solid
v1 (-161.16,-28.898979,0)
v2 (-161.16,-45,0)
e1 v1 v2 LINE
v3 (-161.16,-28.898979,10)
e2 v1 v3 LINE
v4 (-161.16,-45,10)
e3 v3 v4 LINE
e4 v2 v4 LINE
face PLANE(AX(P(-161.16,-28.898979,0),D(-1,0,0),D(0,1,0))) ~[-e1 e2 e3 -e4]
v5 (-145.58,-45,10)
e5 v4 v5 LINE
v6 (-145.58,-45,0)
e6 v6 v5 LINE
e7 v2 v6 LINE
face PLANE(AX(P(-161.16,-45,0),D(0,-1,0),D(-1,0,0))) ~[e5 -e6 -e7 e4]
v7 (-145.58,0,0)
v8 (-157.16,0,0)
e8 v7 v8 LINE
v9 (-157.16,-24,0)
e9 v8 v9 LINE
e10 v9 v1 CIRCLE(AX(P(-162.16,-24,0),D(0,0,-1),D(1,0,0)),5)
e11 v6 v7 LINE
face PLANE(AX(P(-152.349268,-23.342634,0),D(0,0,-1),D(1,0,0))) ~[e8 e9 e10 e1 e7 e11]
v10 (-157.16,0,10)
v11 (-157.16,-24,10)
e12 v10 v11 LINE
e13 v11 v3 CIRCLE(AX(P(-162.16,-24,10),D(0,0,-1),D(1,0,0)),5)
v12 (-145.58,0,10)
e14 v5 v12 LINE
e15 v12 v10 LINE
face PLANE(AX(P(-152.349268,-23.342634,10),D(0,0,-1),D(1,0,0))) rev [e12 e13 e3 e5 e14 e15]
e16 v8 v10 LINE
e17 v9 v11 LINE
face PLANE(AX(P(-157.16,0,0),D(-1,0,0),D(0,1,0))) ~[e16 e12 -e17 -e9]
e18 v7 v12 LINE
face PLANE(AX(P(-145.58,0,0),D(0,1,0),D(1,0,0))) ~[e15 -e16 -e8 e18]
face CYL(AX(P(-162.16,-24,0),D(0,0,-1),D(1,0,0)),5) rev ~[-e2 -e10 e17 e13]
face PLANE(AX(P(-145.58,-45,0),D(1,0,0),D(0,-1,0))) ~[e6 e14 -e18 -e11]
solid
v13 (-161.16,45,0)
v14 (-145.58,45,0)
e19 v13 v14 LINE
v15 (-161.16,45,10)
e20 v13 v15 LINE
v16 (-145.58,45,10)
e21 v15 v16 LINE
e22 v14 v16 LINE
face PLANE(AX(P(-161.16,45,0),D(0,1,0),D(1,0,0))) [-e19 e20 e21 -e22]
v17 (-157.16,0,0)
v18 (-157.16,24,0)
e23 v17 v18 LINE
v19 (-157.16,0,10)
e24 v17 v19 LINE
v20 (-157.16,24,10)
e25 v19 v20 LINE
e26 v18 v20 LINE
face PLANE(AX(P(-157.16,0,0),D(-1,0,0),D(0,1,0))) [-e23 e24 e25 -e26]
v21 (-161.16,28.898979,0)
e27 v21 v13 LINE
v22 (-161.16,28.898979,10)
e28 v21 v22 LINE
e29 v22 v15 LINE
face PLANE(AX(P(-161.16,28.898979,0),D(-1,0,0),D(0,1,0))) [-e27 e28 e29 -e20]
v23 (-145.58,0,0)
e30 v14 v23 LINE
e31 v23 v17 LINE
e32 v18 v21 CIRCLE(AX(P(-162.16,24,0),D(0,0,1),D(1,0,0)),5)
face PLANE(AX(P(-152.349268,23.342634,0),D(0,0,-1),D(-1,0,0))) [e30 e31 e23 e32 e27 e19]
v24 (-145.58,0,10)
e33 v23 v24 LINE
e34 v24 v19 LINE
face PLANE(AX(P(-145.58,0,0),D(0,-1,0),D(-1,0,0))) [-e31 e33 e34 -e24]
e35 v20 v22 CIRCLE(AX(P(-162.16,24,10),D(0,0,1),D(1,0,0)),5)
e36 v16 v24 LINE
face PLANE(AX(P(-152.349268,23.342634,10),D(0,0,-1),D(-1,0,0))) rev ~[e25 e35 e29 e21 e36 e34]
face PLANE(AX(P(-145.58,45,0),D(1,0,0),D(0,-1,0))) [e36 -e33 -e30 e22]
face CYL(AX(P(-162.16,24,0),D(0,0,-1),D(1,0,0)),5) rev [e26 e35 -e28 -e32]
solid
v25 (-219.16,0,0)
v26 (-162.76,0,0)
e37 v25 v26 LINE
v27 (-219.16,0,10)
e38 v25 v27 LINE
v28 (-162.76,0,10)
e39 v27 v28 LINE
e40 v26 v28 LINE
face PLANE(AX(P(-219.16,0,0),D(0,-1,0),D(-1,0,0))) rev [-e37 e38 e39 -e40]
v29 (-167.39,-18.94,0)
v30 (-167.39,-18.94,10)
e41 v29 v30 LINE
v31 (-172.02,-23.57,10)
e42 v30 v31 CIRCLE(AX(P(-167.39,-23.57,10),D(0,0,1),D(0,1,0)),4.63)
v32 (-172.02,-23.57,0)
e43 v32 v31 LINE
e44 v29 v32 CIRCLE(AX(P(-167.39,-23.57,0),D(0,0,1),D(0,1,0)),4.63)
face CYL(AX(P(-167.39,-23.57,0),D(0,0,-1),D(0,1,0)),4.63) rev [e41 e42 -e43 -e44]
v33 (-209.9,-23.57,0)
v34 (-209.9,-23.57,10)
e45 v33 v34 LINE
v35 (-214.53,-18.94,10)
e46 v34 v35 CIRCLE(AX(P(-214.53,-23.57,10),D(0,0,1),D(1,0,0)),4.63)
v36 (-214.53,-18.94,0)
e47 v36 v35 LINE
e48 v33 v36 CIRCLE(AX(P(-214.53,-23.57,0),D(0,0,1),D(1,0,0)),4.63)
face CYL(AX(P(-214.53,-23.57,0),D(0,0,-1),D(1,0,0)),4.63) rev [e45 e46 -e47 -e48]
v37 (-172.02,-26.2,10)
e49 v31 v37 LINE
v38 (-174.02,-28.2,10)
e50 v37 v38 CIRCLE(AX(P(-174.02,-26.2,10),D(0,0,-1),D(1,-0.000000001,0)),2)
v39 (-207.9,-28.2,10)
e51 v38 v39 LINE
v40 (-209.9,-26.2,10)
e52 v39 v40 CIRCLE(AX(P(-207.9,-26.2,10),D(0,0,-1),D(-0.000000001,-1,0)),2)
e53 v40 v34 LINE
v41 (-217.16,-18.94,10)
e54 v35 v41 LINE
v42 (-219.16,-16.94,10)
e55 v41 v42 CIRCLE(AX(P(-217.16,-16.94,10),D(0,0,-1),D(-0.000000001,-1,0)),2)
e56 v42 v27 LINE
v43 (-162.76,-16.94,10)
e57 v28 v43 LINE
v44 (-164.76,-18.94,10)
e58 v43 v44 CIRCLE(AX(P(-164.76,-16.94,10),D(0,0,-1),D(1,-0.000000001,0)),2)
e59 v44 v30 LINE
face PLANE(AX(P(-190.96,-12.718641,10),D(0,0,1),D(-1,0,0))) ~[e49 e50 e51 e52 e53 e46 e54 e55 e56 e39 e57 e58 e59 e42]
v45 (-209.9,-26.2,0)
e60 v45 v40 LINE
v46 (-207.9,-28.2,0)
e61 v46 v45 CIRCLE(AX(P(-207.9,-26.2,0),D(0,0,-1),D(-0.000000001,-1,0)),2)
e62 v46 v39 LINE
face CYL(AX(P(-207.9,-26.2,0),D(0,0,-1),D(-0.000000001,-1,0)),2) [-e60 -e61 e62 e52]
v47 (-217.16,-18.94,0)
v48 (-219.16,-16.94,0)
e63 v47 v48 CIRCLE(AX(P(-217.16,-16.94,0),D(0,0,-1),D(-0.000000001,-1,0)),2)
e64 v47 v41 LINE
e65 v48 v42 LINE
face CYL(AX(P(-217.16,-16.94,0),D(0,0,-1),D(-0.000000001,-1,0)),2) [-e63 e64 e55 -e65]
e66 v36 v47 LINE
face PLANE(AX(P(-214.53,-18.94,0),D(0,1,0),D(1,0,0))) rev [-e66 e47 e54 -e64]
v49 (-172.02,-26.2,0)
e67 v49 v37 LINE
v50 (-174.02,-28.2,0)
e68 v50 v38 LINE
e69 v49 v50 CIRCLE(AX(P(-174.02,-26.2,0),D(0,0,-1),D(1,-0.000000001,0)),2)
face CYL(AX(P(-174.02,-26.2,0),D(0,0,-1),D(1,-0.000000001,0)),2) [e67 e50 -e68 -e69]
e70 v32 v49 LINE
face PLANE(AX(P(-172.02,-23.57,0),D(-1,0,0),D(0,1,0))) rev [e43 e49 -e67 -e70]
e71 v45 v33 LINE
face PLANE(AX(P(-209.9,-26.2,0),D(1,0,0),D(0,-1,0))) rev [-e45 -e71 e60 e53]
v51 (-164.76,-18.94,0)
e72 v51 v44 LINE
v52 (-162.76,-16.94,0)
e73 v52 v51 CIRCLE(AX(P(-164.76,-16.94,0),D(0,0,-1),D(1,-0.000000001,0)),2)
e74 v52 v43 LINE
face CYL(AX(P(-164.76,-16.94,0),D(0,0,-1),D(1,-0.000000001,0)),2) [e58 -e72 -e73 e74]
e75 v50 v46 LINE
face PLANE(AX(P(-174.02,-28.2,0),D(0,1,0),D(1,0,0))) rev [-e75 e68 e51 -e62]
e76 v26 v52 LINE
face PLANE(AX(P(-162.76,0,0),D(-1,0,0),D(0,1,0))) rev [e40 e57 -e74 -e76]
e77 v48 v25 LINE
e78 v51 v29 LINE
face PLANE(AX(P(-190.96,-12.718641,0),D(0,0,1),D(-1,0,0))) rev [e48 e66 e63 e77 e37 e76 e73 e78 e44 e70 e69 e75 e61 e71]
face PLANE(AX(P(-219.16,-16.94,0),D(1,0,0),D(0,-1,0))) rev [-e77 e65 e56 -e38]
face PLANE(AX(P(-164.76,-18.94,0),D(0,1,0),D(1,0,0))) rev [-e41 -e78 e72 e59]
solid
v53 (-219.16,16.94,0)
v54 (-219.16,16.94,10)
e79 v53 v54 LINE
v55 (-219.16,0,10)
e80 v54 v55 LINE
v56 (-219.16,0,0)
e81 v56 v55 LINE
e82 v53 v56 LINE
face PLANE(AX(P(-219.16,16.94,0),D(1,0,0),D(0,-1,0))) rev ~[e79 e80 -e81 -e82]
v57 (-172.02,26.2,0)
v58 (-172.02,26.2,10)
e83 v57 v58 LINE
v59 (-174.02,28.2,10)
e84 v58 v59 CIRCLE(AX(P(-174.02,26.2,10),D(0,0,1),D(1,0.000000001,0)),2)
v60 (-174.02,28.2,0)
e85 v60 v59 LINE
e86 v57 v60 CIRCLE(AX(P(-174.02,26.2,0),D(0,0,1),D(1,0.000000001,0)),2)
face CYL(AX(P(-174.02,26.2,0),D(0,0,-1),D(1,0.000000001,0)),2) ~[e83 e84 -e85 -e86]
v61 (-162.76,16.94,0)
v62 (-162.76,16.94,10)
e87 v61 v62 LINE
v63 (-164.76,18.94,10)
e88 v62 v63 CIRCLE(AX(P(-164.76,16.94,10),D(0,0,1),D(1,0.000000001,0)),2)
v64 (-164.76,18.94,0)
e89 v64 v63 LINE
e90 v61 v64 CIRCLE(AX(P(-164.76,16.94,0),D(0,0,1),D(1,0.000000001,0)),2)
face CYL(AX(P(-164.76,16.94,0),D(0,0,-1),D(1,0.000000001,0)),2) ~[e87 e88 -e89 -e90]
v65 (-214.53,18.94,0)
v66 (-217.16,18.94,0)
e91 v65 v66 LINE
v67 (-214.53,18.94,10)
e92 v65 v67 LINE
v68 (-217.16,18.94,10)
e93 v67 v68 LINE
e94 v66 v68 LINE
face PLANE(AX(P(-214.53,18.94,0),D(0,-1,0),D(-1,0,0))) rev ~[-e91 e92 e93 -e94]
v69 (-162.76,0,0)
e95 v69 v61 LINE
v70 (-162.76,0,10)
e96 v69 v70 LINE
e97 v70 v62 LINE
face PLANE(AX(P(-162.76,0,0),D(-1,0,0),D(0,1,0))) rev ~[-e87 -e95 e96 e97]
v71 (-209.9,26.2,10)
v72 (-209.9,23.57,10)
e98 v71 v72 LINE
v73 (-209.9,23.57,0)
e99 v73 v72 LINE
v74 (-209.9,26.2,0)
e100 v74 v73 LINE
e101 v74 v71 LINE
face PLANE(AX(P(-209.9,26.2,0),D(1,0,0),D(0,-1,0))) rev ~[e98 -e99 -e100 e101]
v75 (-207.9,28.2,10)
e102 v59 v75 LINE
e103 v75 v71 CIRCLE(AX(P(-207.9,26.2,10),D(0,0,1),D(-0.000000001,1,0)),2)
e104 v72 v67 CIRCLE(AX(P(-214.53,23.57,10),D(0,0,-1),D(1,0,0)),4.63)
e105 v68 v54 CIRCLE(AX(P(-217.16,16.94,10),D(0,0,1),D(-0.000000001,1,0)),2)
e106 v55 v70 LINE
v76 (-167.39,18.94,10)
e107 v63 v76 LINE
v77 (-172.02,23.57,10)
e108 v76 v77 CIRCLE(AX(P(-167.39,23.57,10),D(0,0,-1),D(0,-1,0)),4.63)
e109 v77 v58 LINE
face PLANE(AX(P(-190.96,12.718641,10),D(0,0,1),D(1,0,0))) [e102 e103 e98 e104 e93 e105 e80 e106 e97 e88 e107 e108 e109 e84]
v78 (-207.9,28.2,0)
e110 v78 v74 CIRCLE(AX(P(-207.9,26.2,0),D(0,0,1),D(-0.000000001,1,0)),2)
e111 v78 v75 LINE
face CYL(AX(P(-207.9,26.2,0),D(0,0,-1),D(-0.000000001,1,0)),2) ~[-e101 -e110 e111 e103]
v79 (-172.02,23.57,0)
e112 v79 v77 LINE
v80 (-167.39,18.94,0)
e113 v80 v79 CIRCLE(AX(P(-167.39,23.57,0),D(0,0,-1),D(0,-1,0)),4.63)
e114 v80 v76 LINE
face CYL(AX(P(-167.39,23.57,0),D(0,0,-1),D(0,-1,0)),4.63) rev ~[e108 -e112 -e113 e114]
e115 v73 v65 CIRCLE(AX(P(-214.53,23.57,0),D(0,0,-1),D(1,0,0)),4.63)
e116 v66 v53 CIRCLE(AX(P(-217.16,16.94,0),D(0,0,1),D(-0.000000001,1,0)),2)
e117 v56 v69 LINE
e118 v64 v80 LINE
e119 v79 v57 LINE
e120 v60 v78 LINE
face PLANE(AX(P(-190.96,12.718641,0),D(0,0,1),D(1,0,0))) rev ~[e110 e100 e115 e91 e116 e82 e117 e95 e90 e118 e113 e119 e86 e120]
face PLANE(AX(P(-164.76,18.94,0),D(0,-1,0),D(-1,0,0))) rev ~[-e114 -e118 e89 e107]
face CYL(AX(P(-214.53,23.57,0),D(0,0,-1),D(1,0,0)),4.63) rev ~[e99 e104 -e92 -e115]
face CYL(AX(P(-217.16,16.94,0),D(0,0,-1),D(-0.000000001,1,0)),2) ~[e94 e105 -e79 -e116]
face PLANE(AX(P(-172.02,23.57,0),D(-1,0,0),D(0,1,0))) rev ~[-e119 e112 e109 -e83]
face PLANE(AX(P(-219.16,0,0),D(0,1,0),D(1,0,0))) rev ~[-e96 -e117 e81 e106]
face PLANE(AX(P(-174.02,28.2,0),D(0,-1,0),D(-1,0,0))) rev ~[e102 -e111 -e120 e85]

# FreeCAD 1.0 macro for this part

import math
import FreeCAD as App
import Part
import Sketcher

V = App.Vector

doc = App.newDocument("Part")
params = doc.addObject("Spreadsheet::Sheet", "Params")
for row, (alias, value) in enumerate([
    ("sketch1_radius", "2 mm"),
    ("sketch1_radius2", "4.63 mm"),
    ("sketch1_width", "56.4 mm"),
    ("sketch1_width2", "2.63 mm"),
    ("sketch1_height", "16.94 mm"),
    ("pad1_length", "10 mm"),
    ("sketch2_radius", "5 mm"),
    ("sketch2_height", "45 mm"),
    ("sketch2_height2", "24 mm"),
    ("sketch2_width", "15.58 mm"),
    ("pad2_length", "10 mm"),
], start=1):
    params.set(f"A{row}", alias)
    params.set(f"B{row}", "=" + value)
    params.setAlias(f"B{row}", alias)

body = doc.addObject("PartDesign::Body", "Body")

sketch1 = doc.addObject("Sketcher::SketchObject", "Sketch")
body.addObject(sketch1)
sketch1.AttachmentSupport = (doc.XY_Plane, [""])
sketch1.MapMode = "FlatFace"
sketch1.addGeometry([
    Part.LineSegment(V(-162.8, 0, 0), V(-162.8, 16.9, 0)),
    Part.ArcOfCircle(Part.Circle(V(-164.8, 16.9, 0), V(0, 0, 1), 2), math.radians(0), math.radians(90)),
    Part.LineSegment(V(-164.8, 18.9, 0), V(-167.4, 18.9, 0)),
    Part.ArcOfCircle(Part.Circle(V(-167.4, 23.6, 0), V(0, 0, 1), 4.6), math.radians(180), math.radians(270)),
    Part.LineSegment(V(-172, 23.6, 0), V(-172, 26.2, 0)),
    Part.ArcOfCircle(Part.Circle(V(-174, 26.2, 0), V(0, 0, 1), 2), math.radians(0), math.radians(90)),
    Part.LineSegment(V(-174, 28.2, 0), V(-207.9, 28.2, 0)),
    Part.ArcOfCircle(Part.Circle(V(-207.9, 26.2, 0), V(0, 0, 1), 2), math.radians(90), math.radians(180)),
    Part.LineSegment(V(-209.9, 26.2, 0), V(-209.9, 23.6, 0)),
    Part.ArcOfCircle(Part.Circle(V(-214.5, 23.6, 0), V(0, 0, 1), 4.6), math.radians(-90), math.radians(0)),
    Part.LineSegment(V(-214.5, 18.9, 0), V(-217.2, 18.9, 0)),
    Part.ArcOfCircle(Part.Circle(V(-217.2, 16.9, 0), V(0, 0, 1), 2), math.radians(90), math.radians(180)),
    Part.LineSegment(V(-219.2, 16.9, 0), V(-219.2, 0, 0)),
    Part.LineSegment(V(-219.2, 0, 0), V(-162.8, 0, 0)),
], False)
sketch1.addConstraint([
    Sketcher.Constraint("Tangent", 0, 2, 1, 1),
    Sketcher.Constraint("Tangent", 1, 2, 2, 1),
    Sketcher.Constraint("Tangent", 2, 2, 3, 2),
    Sketcher.Constraint("Tangent", 3, 1, 4, 1),
    Sketcher.Constraint("Tangent", 4, 2, 5, 1),
    Sketcher.Constraint("Tangent", 5, 2, 6, 1),
    Sketcher.Constraint("Tangent", 6, 2, 7, 1),
    Sketcher.Constraint("Tangent", 7, 2, 8, 1),
    Sketcher.Constraint("Tangent", 8, 2, 9, 2),
    Sketcher.Constraint("Tangent", 9, 1, 10, 1),
    Sketcher.Constraint("Tangent", 10, 2, 11, 1),
    Sketcher.Constraint("Tangent", 11, 2, 12, 1),
    Sketcher.Constraint("Coincident", 12, 2, 13, 1),
    Sketcher.Constraint("Coincident", 13, 2, 0, 1),
    Sketcher.Constraint("Vertical", 0),
    Sketcher.Constraint("Horizontal", 2),
    Sketcher.Constraint("Vertical", 4),
    Sketcher.Constraint("Horizontal", 6),
    Sketcher.Constraint("Vertical", 8),
    Sketcher.Constraint("Horizontal", 10),
    Sketcher.Constraint("Vertical", 12),
    Sketcher.Constraint("Horizontal", 13),
    Sketcher.Constraint("Equal", 1, 5),
    Sketcher.Constraint("Equal", 5, 7),
    Sketcher.Constraint("Equal", 3, 9),
    Sketcher.Constraint("Equal", 7, 11),
    Sketcher.Constraint("PointOnObject", 12, 2, -1),
    Sketcher.Constraint("Horizontal", 3, 3, 9, 3),
    Sketcher.Constraint("Equal", 2, 10),
    Sketcher.Constraint("Equal", 10, 4),
    Sketcher.Constraint("Radius", 1, 2.0),
    Sketcher.Constraint("Radius", 3, 4.63),
    Sketcher.Constraint("DistanceX", 13, 1, 13, 2, 56.4),
    Sketcher.Constraint("DistanceX", 2, 2, 2, 1, 2.63),
    Sketcher.Constraint("DistanceY", 0, 1, 0, 2, 16.94),
    Sketcher.Constraint("DistanceX", 7, 3, -1, 1, 207.9),
])
sketch1.setExpression("Constraints[30]", "Params.sketch1_radius")
sketch1.setExpression("Constraints[31]", "Params.sketch1_radius2")
sketch1.setExpression("Constraints[32]", "Params.sketch1_width")
sketch1.setExpression("Constraints[33]", "Params.sketch1_width2")
sketch1.setExpression("Constraints[34]", "Params.sketch1_height")
pad1 = doc.addObject("PartDesign::Pad", "Pad")
body.addObject(pad1)
pad1.Profile = sketch1
pad1.setExpression("Length", "Params.pad1_length")
body2 = doc.addObject("PartDesign::Body", "Body001")

sketch2 = doc.addObject("Sketcher::SketchObject", "Sketch001")
body2.addObject(sketch2)
sketch2.AttachmentSupport = (doc.getObject("XY_Plane001"), [""])
sketch2.MapMode = "FlatFace"
sketch2.addGeometry([
    Part.LineSegment(V(-146, 0, 0), V(-146, 45, 0)),
    Part.LineSegment(V(-146, 45, 0), V(-161, 45, 0)),
    Part.LineSegment(V(-161, 45, 0), V(-161, 29, 0)),
    Part.ArcOfCircle(Part.Circle(V(-162, 24, 0), V(0, 0, 1), 5), math.radians(0), math.radians(78)),
    Part.LineSegment(V(-157, 24, 0), V(-157, 0, 0)),
    Part.LineSegment(V(-157, 0, 0), V(-146, 0, 0)),
], False)
sketch2.addConstraint([
    Sketcher.Constraint("Coincident", 0, 2, 1, 1),
    Sketcher.Constraint("Coincident", 1, 2, 2, 1),
    Sketcher.Constraint("Coincident", 2, 2, 3, 2),
    Sketcher.Constraint("Tangent", 3, 1, 4, 1),
    Sketcher.Constraint("Coincident", 4, 2, 5, 1),
    Sketcher.Constraint("Coincident", 5, 2, 0, 1),
    Sketcher.Constraint("Vertical", 0),
    Sketcher.Constraint("Horizontal", 1),
    Sketcher.Constraint("Vertical", 2),
    Sketcher.Constraint("Vertical", 4),
    Sketcher.Constraint("Horizontal", 5),
    Sketcher.Constraint("PointOnObject", 4, 2, -1),
    Sketcher.Constraint("Radius", 3, 5.0),
    Sketcher.Constraint("DistanceY", 0, 1, 0, 2, 45.0),
    Sketcher.Constraint("DistanceY", 4, 2, 4, 1, 24.0),
    Sketcher.Constraint("DistanceX", 3, 3, 1, 2, 1.0),
    Sketcher.Constraint("DistanceX", 1, 2, 1, 1, 15.58),
    Sketcher.Constraint("DistanceX", 3, 3, -1, 1, 162.16),
])
sketch2.setExpression("Constraints[12]", "Params.sketch2_radius")
sketch2.setExpression("Constraints[13]", "Params.sketch2_height")
sketch2.setExpression("Constraints[14]", "Params.sketch2_height2")
sketch2.setExpression("Constraints[16]", "Params.sketch2_width")
pad2 = doc.addObject("PartDesign::Pad", "Pad001")
body2.addObject(pad2)
pad2.Profile = sketch2
pad2.setExpression("Length", "Params.pad2_length")
body3 = doc.addObject("PartDesign::Body", "Body002")
doc.recompute()

mirroring = doc.addObject("Part::Mirroring", "Mirroring")
mirroring.Source = body
mirroring.Base = V(-219.16, 0, 10)
mirroring.Normal = V(0, 1, 0)
body3.BaseFeature = mirroring
doc.recompute()
body4 = doc.addObject("PartDesign::Body", "Body003")
doc.recompute()

mirroring2 = doc.addObject("Part::Mirroring", "Mirroring001")
mirroring2.Source = body2
mirroring2.Base = V(-219.16, 0, 10)
mirroring2.Normal = V(0, 1, 0)
body4.BaseFeature = mirroring2
doc.recompute()
mirroring.Visibility = False
mirroring2.Visibility = False

doc.recompute()
